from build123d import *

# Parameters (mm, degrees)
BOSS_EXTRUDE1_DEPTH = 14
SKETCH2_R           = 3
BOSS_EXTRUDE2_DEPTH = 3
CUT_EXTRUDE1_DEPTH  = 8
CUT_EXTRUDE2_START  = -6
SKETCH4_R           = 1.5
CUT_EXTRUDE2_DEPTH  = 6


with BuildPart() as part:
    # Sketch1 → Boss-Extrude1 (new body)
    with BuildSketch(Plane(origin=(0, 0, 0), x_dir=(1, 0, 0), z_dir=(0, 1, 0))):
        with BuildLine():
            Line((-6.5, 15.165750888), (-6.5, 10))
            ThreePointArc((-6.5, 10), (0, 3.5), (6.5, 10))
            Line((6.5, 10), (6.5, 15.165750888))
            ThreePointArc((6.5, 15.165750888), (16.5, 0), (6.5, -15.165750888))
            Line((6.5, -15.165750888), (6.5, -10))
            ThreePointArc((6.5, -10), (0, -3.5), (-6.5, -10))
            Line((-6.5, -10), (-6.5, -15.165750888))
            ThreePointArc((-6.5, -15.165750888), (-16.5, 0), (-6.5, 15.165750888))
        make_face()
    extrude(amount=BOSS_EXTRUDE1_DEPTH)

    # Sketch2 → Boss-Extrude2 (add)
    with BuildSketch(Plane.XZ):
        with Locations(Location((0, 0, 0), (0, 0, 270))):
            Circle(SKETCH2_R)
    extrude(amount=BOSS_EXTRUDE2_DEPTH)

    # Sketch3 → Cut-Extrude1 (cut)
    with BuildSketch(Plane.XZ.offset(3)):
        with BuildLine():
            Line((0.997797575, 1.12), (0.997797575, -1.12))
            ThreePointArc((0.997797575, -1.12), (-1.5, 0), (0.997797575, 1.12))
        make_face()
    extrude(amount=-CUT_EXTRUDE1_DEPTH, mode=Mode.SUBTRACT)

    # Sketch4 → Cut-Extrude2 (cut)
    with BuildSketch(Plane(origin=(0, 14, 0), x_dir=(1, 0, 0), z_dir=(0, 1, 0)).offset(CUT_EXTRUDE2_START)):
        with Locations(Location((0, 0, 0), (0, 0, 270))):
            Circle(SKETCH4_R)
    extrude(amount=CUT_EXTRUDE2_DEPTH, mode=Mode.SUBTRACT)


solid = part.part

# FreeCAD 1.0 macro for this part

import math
import FreeCAD as App
import Part
import Sketcher

V = App.Vector
Q = App.Units.Quantity

doc = App.newDocument("Part")
body = doc.addObject("PartDesign::Body", "Body")

sketch1 = body.newObject("Sketcher::SketchObject", "Sketch")
sketch1.AttachmentSupport = (doc.getObject("XZ_Plane"), [""])
sketch1.MapMode = "FlatFace"
sketch1.addGeometry(Part.LineSegment(V(-6, -10, 0), V(-6, -15, 0)), False)
sketch1.addGeometry(Part.ArcOfCircle(Part.Circle(V(0, 0, 0), V(0, 0, 1), 16), math.radians(113), math.radians(247)), False)
sketch1.addGeometry(Part.LineSegment(V(-6, 15, 0), V(-6, 10, 0)), False)
sketch1.addGeometry(Part.ArcOfCircle(Part.Circle(V(0, 10, 0), V(0, 0, 1), 6), math.radians(180), math.radians(360)), False)
sketch1.addGeometry(Part.LineSegment(V(6, 10, 0), V(6, 15, 0)), False)
sketch1.addGeometry(Part.ArcOfCircle(Part.Circle(V(0, 0, 0), V(0, 0, 1), 16), math.radians(-67), math.radians(67)), False)
sketch1.addGeometry(Part.LineSegment(V(6, -15, 0), V(6, -10, 0)), False)
sketch1.addGeometry(Part.ArcOfCircle(Part.Circle(V(0, -10, 0), V(0, 0, 1), 6), math.radians(0), math.radians(180)), False)
sketch1.addConstraint(Sketcher.Constraint("Coincident", 0, 2, 1, 2))
sketch1.addConstraint(Sketcher.Constraint("Coincident", 1, 1, 2, 1))
sketch1.addConstraint(Sketcher.Constraint("Tangent", 2, 2, 3, 1))
sketch1.addConstraint(Sketcher.Constraint("Tangent", 3, 2, 4, 1))
sketch1.addConstraint(Sketcher.Constraint("Coincident", 4, 2, 5, 2))
sketch1.addConstraint(Sketcher.Constraint("Coincident", 5, 1, 6, 1))
sketch1.addConstraint(Sketcher.Constraint("Tangent", 6, 2, 7, 1))
sketch1.addConstraint(Sketcher.Constraint("Tangent", 7, 2, 0, 1))
sketch1.addConstraint(Sketcher.Constraint("Vertical", 0))
sketch1.addConstraint(Sketcher.Constraint("Vertical", 2))
sketch1.addConstraint(Sketcher.Constraint("Vertical", 4))
sketch1.addConstraint(Sketcher.Constraint("Vertical", 6))
sketch1.addConstraint(Sketcher.Constraint("Coincident", 1, 3, -1, 1))
sketch1.addConstraint(Sketcher.Constraint("Coincident", 5, 3, -1, 1))
sketch1.addConstraint(Sketcher.Constraint("Equal", 1, 5))
sketch1.addConstraint(Sketcher.Constraint("Equal", 3, 7))
sketch1.addConstraint(Sketcher.Constraint("Symmetric", 3, 3, 7, 3, -1, 1))
sketch1.addConstraint(Sketcher.Constraint("PointOnObject", 3, 3, -2))
sketch1.addConstraint(Sketcher.Constraint("Radius", 1, Q("16.5 mm")))
sketch1.addConstraint(Sketcher.Constraint("Radius", 3, Q("6.5 mm")))
sketch1.addConstraint(Sketcher.Constraint("DistanceY", -1, 1, 3, 3, Q("10 mm")))
pad1 = body.newObject("PartDesign::Pad", "Pad")
pad1.Profile = sketch1
pad1.Length = 14
pad1.Reversed = True

sketch2 = body.newObject("Sketcher::SketchObject", "Sketch001")
sketch2.AttachmentSupport = (doc.getObject("XZ_Plane"), [""])
sketch2.MapMode = "FlatFace"
sketch2.addGeometry(Part.Circle(V(0, 0, 0), V(0, 0, 1), 3), False)
sketch2.addConstraint(Sketcher.Constraint("Coincident", 0, 3, -1, 1))
sketch2.addConstraint(Sketcher.Constraint("Diameter", 0, Q("6 mm")))
pad2 = body.newObject("PartDesign::Pad", "Pad001")
pad2.Profile = sketch2
pad2.Length = 3

sketch3 = body.newObject("Sketcher::SketchObject", "Sketch002")
sketch3.AttachmentSupport = (doc.getObject("XZ_Plane"), [""])
sketch3.MapMode = "FlatFace"
sketch3.AttachmentOffset = App.Placement(V(0, 0, 3), App.Rotation())
sketch3.addGeometry(Part.LineSegment(V(1, -1.1, 0), V(1, 1.1, 0)), False)
sketch3.addGeometry(Part.ArcOfCircle(Part.Circle(V(0, 0, 0), V(0, 0, 1), 1.5), math.radians(48), math.radians(312)), False)
sketch3.addConstraint(Sketcher.Constraint("Coincident", 0, 1, 1, 2))
sketch3.addConstraint(Sketcher.Constraint("Coincident", 1, 1, 0, 2))
sketch3.addConstraint(Sketcher.Constraint("Vertical", 0))
sketch3.addConstraint(Sketcher.Constraint("Coincident", 1, 3, -1, 1))
sketch3.addConstraint(Sketcher.Constraint("Radius", 1, Q("1.5 mm")))
sketch3.addConstraint(Sketcher.Constraint("DistanceY", 0, 1, 0, 2, Q("2.24 mm")))
pocket1 = body.newObject("PartDesign::Pocket", "Pocket")
pocket1.Profile = sketch3
pocket1.Length = 8

sketch4 = body.newObject("Sketcher::SketchObject", "Sketch003")
sketch4.AttachmentSupport = (doc.getObject("XZ_Plane"), [""])
sketch4.MapMode = "FlatFace"
sketch4.AttachmentOffset = App.Placement(V(0, 0, -8), App.Rotation())
sketch4.addGeometry(Part.Circle(V(0, 0, 0), V(0, 0, 1), 1.5), False)
sketch4.addConstraint(Sketcher.Constraint("Coincident", 0, 3, -1, 1))
sketch4.addConstraint(Sketcher.Constraint("Diameter", 0, Q("3 mm")))
pocket2 = body.newObject("PartDesign::Pocket", "Pocket001")
pocket2.Profile = sketch4
pocket2.Length = 6

doc.recompute()
